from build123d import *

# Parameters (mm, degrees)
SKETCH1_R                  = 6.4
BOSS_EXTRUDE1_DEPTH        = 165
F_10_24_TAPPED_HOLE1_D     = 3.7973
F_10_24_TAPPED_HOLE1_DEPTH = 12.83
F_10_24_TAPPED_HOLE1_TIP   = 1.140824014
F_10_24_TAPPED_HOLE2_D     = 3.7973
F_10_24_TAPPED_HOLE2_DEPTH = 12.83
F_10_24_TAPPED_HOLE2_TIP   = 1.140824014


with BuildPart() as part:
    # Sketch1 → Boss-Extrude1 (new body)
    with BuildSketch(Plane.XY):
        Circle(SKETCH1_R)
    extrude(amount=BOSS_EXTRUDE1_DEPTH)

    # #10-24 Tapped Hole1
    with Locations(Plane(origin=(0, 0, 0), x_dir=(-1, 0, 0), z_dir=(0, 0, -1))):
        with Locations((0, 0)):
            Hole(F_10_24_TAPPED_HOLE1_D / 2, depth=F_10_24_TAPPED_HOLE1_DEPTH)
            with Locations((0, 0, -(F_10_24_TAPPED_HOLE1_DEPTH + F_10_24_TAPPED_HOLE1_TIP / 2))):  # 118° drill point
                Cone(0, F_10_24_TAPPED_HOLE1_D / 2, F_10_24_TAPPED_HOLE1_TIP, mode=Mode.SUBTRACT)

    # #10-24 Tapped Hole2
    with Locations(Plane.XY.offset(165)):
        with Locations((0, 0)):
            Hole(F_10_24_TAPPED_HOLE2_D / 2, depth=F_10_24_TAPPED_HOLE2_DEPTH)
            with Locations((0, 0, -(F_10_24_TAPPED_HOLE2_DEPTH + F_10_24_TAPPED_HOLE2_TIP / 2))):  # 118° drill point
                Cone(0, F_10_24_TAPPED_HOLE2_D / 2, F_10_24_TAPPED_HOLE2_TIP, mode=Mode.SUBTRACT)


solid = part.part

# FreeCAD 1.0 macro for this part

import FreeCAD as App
import Part
import Sketcher
from FreeCAD import Vector
Q = App.Units.Quantity

doc = App.newDocument("Part")
body = doc.addObject("PartDesign::Body", "Body")

sketch1 = body.newObject("Sketcher::SketchObject", "Sketch")
sketch1.AttachmentSupport = (doc.getObject("XY_Plane"), [""])
sketch1.MapMode = "FlatFace"
sketch1.addGeometry(Part.Circle(Vector(0, 0, 0), Vector(0, 0, 1), 6), False)
sketch1.addConstraint([
    Sketcher.Constraint("Coincident", 0, 3, -1, 1),
    Sketcher.Constraint("Diameter", 0, Q("12.8 mm")),
])
pad1 = body.newObject("PartDesign::Pad", "Pad")
pad1.Profile = sketch1
pad1.Length = 165

sketch2 = body.newObject("Sketcher::SketchObject", "Sketch001")
sketch2.AttachmentSupport = (doc.getObject("XY_Plane"), [""])
sketch2.MapMode = "FlatFace"
sketch2.addGeometry(Part.Circle(Vector(0, 0, 0), Vector(0, 0, 1), 1.9), False)
sketch2.addConstraint([
    Sketcher.Constraint("Coincident", 0, 3, -1, 1),
    Sketcher.Constraint("Diameter", 0, Q("3.7973 mm")),
])
doc.recompute()
hole = body.newObject("PartDesign::Hole", "Hole")
hole.Profile = sketch2
hole.ThreadType = "None"
hole.Diameter = 3.7973
hole.DepthType = "Dimension"
hole.Depth = 12.83
hole.DrillPoint = "Angled"
hole.DrillPointAngle = 118
hole.Reversed = True

sketch3 = body.newObject("Sketcher::SketchObject", "Sketch002")
sketch3.AttachmentSupport = (doc.getObject("XY_Plane"), [""])
sketch3.MapMode = "FlatFace"
sketch3.AttachmentOffset = App.Placement(Vector(0, 0, 165), App.Rotation())
sketch3.addGeometry(Part.Circle(Vector(0, 0, 0), Vector(0, 0, 1), 1.9), False)
sketch3.addConstraint([
    Sketcher.Constraint("Coincident", 0, 3, -1, 1),
    Sketcher.Constraint("Diameter", 0, Q("3.7973 mm")),
])
doc.recompute()
hole2 = body.newObject("PartDesign::Hole", "Hole001")
hole2.Profile = sketch3
hole2.ThreadType = "None"
hole2.Diameter = 3.7973
hole2.DepthType = "Dimension"
hole2.Depth = 12.83
hole2.DrillPoint = "Angled"
hole2.DrillPointAngle = 118

doc.recompute()
